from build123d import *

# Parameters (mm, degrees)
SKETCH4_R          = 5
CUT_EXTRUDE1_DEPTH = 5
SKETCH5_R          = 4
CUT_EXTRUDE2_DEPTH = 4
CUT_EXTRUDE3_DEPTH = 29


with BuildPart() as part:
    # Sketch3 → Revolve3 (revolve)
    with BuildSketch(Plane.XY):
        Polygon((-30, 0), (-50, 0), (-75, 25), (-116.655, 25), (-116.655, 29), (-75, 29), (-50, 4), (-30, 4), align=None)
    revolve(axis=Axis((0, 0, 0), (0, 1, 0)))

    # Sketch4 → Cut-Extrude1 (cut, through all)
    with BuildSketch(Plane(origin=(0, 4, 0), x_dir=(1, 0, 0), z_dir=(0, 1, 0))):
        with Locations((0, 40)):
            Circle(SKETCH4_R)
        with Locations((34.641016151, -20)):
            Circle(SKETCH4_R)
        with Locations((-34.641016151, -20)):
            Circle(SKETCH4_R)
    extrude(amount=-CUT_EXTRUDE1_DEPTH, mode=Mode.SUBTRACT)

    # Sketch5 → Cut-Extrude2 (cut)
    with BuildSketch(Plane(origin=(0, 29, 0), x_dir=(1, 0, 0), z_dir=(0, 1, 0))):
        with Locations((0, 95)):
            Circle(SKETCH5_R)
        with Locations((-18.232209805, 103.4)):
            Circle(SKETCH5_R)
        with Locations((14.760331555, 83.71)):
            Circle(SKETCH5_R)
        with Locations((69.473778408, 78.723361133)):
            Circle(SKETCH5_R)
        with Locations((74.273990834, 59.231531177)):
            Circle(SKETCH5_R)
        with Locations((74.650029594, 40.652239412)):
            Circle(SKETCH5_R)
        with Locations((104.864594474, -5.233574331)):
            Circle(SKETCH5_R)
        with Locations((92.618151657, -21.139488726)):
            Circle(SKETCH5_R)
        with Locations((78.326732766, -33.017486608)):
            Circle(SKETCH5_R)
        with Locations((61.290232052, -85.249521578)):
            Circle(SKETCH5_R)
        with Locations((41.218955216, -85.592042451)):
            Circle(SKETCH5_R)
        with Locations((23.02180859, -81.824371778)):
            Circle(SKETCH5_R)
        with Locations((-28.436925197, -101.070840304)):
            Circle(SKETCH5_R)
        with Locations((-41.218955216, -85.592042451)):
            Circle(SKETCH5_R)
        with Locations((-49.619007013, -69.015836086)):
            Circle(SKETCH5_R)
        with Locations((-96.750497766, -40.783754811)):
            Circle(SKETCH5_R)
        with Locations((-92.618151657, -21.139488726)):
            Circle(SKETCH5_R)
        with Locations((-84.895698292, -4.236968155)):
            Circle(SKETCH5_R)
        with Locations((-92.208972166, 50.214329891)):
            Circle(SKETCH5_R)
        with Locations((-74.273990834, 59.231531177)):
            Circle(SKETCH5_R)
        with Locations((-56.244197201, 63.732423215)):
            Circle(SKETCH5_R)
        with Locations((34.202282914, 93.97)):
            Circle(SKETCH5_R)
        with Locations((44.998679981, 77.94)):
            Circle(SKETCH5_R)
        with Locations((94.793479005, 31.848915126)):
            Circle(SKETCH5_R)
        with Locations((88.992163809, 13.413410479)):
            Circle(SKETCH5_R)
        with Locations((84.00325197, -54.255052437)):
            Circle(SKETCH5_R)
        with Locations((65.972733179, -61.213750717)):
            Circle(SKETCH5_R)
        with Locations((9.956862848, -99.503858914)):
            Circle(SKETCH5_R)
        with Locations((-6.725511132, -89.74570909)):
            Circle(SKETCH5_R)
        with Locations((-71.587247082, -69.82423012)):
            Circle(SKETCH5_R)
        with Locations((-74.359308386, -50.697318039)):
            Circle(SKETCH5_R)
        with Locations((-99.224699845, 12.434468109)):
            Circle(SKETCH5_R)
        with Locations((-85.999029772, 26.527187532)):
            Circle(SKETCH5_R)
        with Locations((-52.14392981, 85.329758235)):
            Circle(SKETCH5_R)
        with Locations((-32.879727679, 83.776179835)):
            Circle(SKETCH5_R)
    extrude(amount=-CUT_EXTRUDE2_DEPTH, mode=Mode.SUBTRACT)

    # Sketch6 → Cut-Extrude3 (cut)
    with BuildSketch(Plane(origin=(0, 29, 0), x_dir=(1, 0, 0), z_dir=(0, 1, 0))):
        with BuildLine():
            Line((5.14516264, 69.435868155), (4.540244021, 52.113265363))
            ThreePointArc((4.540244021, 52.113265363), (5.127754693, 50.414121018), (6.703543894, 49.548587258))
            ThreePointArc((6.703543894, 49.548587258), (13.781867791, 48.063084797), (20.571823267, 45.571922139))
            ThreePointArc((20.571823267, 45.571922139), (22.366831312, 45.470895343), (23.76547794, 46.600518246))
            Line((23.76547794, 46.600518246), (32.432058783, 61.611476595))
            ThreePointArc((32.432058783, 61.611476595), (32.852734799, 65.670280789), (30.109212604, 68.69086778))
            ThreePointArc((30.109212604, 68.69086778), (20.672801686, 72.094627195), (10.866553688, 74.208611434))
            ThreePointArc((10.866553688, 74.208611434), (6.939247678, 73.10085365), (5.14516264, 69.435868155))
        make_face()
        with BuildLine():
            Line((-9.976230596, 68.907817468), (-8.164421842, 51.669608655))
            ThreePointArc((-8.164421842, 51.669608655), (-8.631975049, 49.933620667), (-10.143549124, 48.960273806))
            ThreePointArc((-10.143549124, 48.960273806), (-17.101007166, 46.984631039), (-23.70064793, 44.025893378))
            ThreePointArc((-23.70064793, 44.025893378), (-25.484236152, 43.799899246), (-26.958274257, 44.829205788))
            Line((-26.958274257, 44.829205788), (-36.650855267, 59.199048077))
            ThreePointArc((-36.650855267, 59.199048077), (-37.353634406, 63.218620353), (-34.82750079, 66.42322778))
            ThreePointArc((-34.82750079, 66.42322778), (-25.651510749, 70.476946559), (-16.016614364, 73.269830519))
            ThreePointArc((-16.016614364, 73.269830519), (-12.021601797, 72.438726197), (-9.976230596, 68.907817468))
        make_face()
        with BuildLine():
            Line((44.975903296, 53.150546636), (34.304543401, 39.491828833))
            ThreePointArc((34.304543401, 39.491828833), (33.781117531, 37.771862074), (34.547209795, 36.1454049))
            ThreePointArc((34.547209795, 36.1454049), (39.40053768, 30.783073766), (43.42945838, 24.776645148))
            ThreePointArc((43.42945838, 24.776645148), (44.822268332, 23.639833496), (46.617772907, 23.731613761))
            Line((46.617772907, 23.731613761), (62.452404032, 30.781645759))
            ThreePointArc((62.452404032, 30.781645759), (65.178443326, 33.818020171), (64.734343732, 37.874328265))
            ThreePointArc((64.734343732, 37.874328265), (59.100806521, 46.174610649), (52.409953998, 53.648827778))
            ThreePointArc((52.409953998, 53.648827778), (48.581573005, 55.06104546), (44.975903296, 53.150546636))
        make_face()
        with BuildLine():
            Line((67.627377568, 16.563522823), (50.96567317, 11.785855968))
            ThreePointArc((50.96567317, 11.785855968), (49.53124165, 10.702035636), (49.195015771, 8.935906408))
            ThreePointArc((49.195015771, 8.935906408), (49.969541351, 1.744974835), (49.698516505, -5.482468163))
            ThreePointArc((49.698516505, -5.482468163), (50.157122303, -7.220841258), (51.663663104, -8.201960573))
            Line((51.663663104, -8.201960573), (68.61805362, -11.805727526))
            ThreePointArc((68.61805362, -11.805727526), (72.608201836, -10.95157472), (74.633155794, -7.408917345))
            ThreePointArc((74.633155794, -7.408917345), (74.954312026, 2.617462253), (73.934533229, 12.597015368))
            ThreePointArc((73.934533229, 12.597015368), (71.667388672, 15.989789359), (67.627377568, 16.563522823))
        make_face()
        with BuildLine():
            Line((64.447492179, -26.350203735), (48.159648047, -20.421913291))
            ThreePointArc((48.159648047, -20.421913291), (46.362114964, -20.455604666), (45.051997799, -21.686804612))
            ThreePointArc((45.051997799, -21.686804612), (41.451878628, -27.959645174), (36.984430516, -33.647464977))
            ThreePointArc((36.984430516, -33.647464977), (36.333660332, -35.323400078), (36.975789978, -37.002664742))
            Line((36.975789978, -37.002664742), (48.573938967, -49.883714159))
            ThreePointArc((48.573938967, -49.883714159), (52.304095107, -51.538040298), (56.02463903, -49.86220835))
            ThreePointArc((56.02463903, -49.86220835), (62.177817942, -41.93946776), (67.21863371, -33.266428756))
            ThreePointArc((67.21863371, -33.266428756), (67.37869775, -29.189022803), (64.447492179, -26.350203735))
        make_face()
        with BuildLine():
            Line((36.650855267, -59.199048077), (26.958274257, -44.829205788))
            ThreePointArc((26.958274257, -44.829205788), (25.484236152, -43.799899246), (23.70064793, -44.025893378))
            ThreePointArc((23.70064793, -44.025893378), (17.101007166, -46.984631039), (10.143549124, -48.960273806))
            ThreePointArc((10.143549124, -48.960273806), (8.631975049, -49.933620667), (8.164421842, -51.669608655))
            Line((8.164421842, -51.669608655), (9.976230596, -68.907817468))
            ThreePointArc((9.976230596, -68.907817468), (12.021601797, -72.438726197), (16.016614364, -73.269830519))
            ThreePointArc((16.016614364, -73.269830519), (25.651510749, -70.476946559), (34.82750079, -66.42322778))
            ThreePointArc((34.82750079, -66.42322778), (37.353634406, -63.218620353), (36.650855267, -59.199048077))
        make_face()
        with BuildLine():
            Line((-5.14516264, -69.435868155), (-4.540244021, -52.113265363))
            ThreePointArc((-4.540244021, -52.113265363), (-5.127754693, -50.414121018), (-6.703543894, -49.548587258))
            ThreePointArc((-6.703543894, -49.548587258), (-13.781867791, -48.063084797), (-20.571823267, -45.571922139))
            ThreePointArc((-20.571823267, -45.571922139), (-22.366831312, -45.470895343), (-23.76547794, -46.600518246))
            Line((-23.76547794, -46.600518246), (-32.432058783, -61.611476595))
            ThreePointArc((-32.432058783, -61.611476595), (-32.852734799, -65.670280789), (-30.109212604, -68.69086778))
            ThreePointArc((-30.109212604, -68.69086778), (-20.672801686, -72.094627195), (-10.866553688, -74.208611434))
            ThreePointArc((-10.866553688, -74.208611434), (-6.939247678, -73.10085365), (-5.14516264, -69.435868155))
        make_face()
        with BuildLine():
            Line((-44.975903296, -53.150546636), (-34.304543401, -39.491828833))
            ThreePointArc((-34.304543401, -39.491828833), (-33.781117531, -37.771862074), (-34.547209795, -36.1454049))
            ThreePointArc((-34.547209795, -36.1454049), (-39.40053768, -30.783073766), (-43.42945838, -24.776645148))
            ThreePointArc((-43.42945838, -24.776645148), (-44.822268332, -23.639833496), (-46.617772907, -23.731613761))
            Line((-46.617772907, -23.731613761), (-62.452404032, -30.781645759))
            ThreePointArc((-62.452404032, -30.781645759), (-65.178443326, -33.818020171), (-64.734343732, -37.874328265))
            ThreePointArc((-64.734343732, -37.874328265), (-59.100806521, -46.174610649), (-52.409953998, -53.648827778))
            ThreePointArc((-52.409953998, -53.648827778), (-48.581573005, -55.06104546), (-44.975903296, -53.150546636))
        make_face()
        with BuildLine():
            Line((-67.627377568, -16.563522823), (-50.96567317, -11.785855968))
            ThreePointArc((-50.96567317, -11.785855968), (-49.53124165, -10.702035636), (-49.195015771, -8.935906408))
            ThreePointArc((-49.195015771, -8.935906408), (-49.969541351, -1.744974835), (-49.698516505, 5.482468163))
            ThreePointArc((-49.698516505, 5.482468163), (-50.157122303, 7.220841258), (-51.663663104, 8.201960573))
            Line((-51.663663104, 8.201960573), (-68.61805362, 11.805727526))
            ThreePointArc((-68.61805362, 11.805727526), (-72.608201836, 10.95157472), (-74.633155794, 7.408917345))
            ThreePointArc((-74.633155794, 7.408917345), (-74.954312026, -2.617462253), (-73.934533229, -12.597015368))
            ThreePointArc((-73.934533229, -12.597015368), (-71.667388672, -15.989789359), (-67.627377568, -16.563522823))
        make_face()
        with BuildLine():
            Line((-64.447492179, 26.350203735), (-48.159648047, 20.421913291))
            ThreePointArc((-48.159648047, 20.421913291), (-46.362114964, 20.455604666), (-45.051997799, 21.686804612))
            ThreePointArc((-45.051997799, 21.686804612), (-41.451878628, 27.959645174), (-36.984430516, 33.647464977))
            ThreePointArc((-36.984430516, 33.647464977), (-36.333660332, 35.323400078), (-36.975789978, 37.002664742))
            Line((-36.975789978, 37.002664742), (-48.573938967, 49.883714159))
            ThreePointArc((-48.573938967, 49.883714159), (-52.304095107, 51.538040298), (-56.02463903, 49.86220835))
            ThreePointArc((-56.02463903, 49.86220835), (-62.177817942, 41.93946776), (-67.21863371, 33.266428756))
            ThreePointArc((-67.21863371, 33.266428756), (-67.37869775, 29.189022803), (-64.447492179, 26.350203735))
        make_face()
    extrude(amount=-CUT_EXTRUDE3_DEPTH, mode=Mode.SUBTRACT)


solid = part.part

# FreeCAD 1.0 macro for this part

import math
import FreeCAD as App
import Part
import Sketcher
Q = App.Units.Quantity

doc = App.newDocument("Part")
body = doc.addObject("PartDesign::Body", "Body")

sketch1 = body.newObject("Sketcher::SketchObject", "Sketch")
sketch1.AttachmentSupport = (doc.getObject("XY_Plane"), [""])
sketch1.MapMode = "FlatFace"
sketch1.addGeometry([
    Part.LineSegment(App.Vector(-50, 0, 0), App.Vector(-30, 0, 0)),
    Part.LineSegment(App.Vector(-30, 0, 0), App.Vector(-30, 4, 0)),
    Part.LineSegment(App.Vector(-30, 4, 0), App.Vector(-50, 4, 0)),
    Part.LineSegment(App.Vector(-50, 4, 0), App.Vector(-75, 29, 0)),
    Part.LineSegment(App.Vector(-75, 29, 0), App.Vector(-116.7, 29, 0)),
    Part.LineSegment(App.Vector(-116.7, 29, 0), App.Vector(-116.7, 25, 0)),
    Part.LineSegment(App.Vector(-116.7, 25, 0), App.Vector(-75, 25, 0)),
    Part.LineSegment(App.Vector(-75, 25, 0), App.Vector(-50, 0, 0)),
], False)
sketch1.addConstraint([
    Sketcher.Constraint("Coincident", 0, 2, 1, 1),
    Sketcher.Constraint("Coincident", 1, 2, 2, 1),
    Sketcher.Constraint("Coincident", 2, 2, 3, 1),
    Sketcher.Constraint("Coincident", 3, 2, 4, 1),
    Sketcher.Constraint("Coincident", 4, 2, 5, 1),
    Sketcher.Constraint("Coincident", 5, 2, 6, 1),
    Sketcher.Constraint("Coincident", 6, 2, 7, 1),
    Sketcher.Constraint("Coincident", 7, 2, 0, 1),
    Sketcher.Constraint("Horizontal", 0),
    Sketcher.Constraint("Vertical", 1),
    Sketcher.Constraint("Horizontal", 2),
    Sketcher.Constraint("Horizontal", 4),
    Sketcher.Constraint("Vertical", 5),
    Sketcher.Constraint("Horizontal", 6),
    Sketcher.Constraint("PointOnObject", 0, 2, -1),
    Sketcher.Constraint("Parallel", 3, 7),
    Sketcher.Constraint("Vertical", 3, 2, 6, 2),
    Sketcher.Constraint("Vertical", 2, 2, 7, 2),
    Sketcher.Constraint("DistanceX", 0, 1, 0, 2, 20.0),
    Sketcher.Constraint("DistanceY", 1, 1, 1, 2, 4.0),
    Sketcher.Constraint("Angle", 3, Q("135 deg")),
    Sketcher.Constraint("DistanceX", 0, 2, -1, 1, 30.0),
    Sketcher.Constraint("DistanceX", 3, 2, -1, 1, 75.0),
    Sketcher.Constraint("DistanceX", 4, 2, 4, 1, 41.655),
])
revolution = body.newObject("PartDesign::Revolution", "Revolution")
revolution.Profile = sketch1
revolution.ReferenceAxis = (sketch1, ["V_Axis"])
revolution.Angle = 360

sketch2 = body.newObject("Sketcher::SketchObject", "Sketch001")
sketch2.AttachmentSupport = (doc.getObject("XZ_Plane"), [""])
sketch2.MapMode = "FlatFace"
sketch2.AttachmentOffset = App.Placement(App.Vector(0, 0, -4), App.Rotation())
sketch2.addGeometry([
    Part.Circle(App.Vector(0, -40, 0), App.Vector(0, 0, 1), 5),
    Part.Circle(App.Vector(35, 20, 0), App.Vector(0, 0, 1), 5),
    Part.Circle(App.Vector(-35, 20, 0), App.Vector(0, 0, 1), 5),
], False)
sketch2.addConstraint([
    Sketcher.Constraint("Equal", 0, 1),
    Sketcher.Constraint("Equal", 1, 2),
    Sketcher.Constraint("Symmetric", 1, 3, 2, 3, -2),
    Sketcher.Constraint("PointOnObject", 0, 3, -2),
    Sketcher.Constraint("Diameter", 0, 10.0),
    Sketcher.Constraint("DistanceY", 0, 3, -1, 1, 40.0),
    Sketcher.Constraint("DistanceY", -1, 1, 1, 3, 20.0),
    Sketcher.Constraint("DistanceX", -1, 1, 1, 3, 34.641016),
])
pocket1 = body.newObject("PartDesign::Pocket", "Pocket")
pocket1.Profile = sketch2
pocket1.Type = "ThroughAll"
pocket1.Reversed = True

sketch3 = body.newObject("Sketcher::SketchObject", "Sketch002")
sketch3.AttachmentSupport = (doc.getObject("XZ_Plane"), [""])
sketch3.MapMode = "FlatFace"
sketch3.AttachmentOffset = App.Placement(App.Vector(0, 0, -29), App.Rotation())
sketch3.addGeometry([
    Part.Circle(App.Vector(0, -95, 0), App.Vector(0, 0, 1), 4),
    Part.Circle(App.Vector(-18.2, -103.4, 0), App.Vector(0, 0, 1), 4),
    Part.Circle(App.Vector(14.8, -83.7, 0), App.Vector(0, 0, 1), 4),
    Part.Circle(App.Vector(69.5, -78.7, 0), App.Vector(0, 0, 1), 4),
    Part.Circle(App.Vector(74.3, -59.2, 0), App.Vector(0, 0, 1), 4),
    Part.Circle(App.Vector(74.7, -40.7, 0), App.Vector(0, 0, 1), 4),
    Part.Circle(App.Vector(104.9, 5.2, 0), App.Vector(0, 0, 1), 4),
    Part.Circle(App.Vector(92.6, 21.1, 0), App.Vector(0, 0, 1), 4),
    Part.Circle(App.Vector(78.3, 33, 0), App.Vector(0, 0, 1), 4),
    Part.Circle(App.Vector(61.3, 85.2, 0), App.Vector(0, 0, 1), 4),
    Part.Circle(App.Vector(41.2, 85.6, 0), App.Vector(0, 0, 1), 4),
    Part.Circle(App.Vector(23, 81.8, 0), App.Vector(0, 0, 1), 4),
    Part.Circle(App.Vector(-28.4, 101.1, 0), App.Vector(0, 0, 1), 4),
    Part.Circle(App.Vector(-41.2, 85.6, 0), App.Vector(0, 0, 1), 4),
    Part.Circle(App.Vector(-49.6, 69, 0), App.Vector(0, 0, 1), 4),
    Part.Circle(App.Vector(-96.8, 40.8, 0), App.Vector(0, 0, 1), 4),
    Part.Circle(App.Vector(-92.6, 21.1, 0), App.Vector(0, 0, 1), 4),
    Part.Circle(App.Vector(-84.9, 4.2, 0), App.Vector(0, 0, 1), 4),
    Part.Circle(App.Vector(-92.2, -50.2, 0), App.Vector(0, 0, 1), 4),
    Part.Circle(App.Vector(-74.3, -59.2, 0), App.Vector(0, 0, 1), 4),
    Part.Circle(App.Vector(-56.2, -63.7, 0), App.Vector(0, 0, 1), 4),
    Part.Circle(App.Vector(34.2, -94, 0), App.Vector(0, 0, 1), 4),
    Part.Circle(App.Vector(45, -77.9, 0), App.Vector(0, 0, 1), 4),
    Part.Circle(App.Vector(94.8, -31.8, 0), App.Vector(0, 0, 1), 4),
    Part.Circle(App.Vector(89, -13.4, 0), App.Vector(0, 0, 1), 4),
    Part.Circle(App.Vector(84, 54.3, 0), App.Vector(0, 0, 1), 4),
    Part.Circle(App.Vector(66, 61.2, 0), App.Vector(0, 0, 1), 4),
    Part.Circle(App.Vector(10, 99.5, 0), App.Vector(0, 0, 1), 4),
    Part.Circle(App.Vector(-6.7, 89.7, 0), App.Vector(0, 0, 1), 4),
    Part.Circle(App.Vector(-71.6, 69.8, 0), App.Vector(0, 0, 1), 4),
    Part.Circle(App.Vector(-74.4, 50.7, 0), App.Vector(0, 0, 1), 4),
    Part.Circle(App.Vector(-99.2, -12.4, 0), App.Vector(0, 0, 1), 4),
    Part.Circle(App.Vector(-86, -26.5, 0), App.Vector(0, 0, 1), 4),
    Part.Circle(App.Vector(-52.1, -85.3, 0), App.Vector(0, 0, 1), 4),
    Part.Circle(App.Vector(-32.9, -83.8, 0), App.Vector(0, 0, 1), 4),
], False)
sketch3.addConstraint([
    Sketcher.Constraint("Equal", 0, 1),
    Sketcher.Constraint("Equal", 1, 2),
    Sketcher.Constraint("Equal", 2, 3),
    Sketcher.Constraint("Equal", 3, 4),
    Sketcher.Constraint("Equal", 4, 5),
    Sketcher.Constraint("Equal", 5, 6),
    Sketcher.Constraint("Equal", 6, 7),
    Sketcher.Constraint("Equal", 7, 8),
    Sketcher.Constraint("Equal", 8, 9),
    Sketcher.Constraint("Equal", 9, 10),
    Sketcher.Constraint("Equal", 10, 11),
    Sketcher.Constraint("Equal", 11, 12),
    Sketcher.Constraint("Equal", 12, 13),
    Sketcher.Constraint("Equal", 13, 14),
    Sketcher.Constraint("Equal", 14, 15),
    Sketcher.Constraint("Equal", 15, 16),
    Sketcher.Constraint("Equal", 16, 17),
    Sketcher.Constraint("Equal", 17, 18),
    Sketcher.Constraint("Equal", 18, 19),
    Sketcher.Constraint("Equal", 19, 20),
    Sketcher.Constraint("Equal", 20, 21),
    Sketcher.Constraint("Equal", 21, 22),
    Sketcher.Constraint("Equal", 22, 23),
    Sketcher.Constraint("Equal", 23, 24),
    Sketcher.Constraint("Equal", 24, 25),
    Sketcher.Constraint("Equal", 25, 26),
    Sketcher.Constraint("Equal", 26, 27),
    Sketcher.Constraint("Equal", 27, 28),
    Sketcher.Constraint("Equal", 28, 29),
    Sketcher.Constraint("Equal", 29, 30),
    Sketcher.Constraint("Equal", 30, 31),
    Sketcher.Constraint("Equal", 31, 32),
    Sketcher.Constraint("Equal", 32, 33),
    Sketcher.Constraint("Equal", 33, 34),
    Sketcher.Constraint("Symmetric", 10, 3, 13, 3, -2),
    Sketcher.Constraint("Symmetric", 7, 3, 16, 3, -2),
    Sketcher.Constraint("Symmetric", 4, 3, 19, 3, -2),
    Sketcher.Constraint("PointOnObject", 0, 3, -2),
    Sketcher.Constraint("Diameter", 0, 8.0),
    Sketcher.Constraint("DistanceY", 0, 3, -1, 1, 95.0),
    Sketcher.Constraint("DistanceY", 1, 3, -1, 1, 103.4),
    Sketcher.Constraint("DistanceY", 2, 3, -1, 1, 83.71),
    Sketcher.Constraint("DistanceY", 21, 3, -1, 1, 93.97),
    Sketcher.Constraint("DistanceY", 22, 3, -1, 1, 77.94),
    Sketcher.Constraint("DistanceX", 26, 3, 8, 3, 12.354),
    Sketcher.Constraint("DistanceX", 31, 3, 17, 3, 14.329002),
    Sketcher.Constraint("DistanceX", 17, 3, -1, 1, 84.895698),
    Sketcher.Constraint("DistanceX", 1, 3, 4, 3, 92.506201),
    Sketcher.Constraint("DistanceX", 2, 3, 5, 3, 59.889698),
    Sketcher.Constraint("DistanceX", 9, 3, 8, 3, 17.036501),
    Sketcher.Constraint("DistanceX", 15, 3, 17, 3, 11.854799),
    Sketcher.Constraint("DistanceY", 18, 3, 17, 3, 54.451298),
    Sketcher.Constraint("DistanceY", 19, 3, 18, 3, 9.017201),
    Sketcher.Constraint("DistanceX", 17, 3, 20, 3, 28.651501),
    Sketcher.Constraint("DistanceX", 22, 3, 3, 3, 24.475098),
    Sketcher.Constraint("DistanceX", 3, 3, 23, 3, 25.319701),
    Sketcher.Constraint("DistanceY", 24, 3, 7, 3, 34.552899),
    Sketcher.Constraint("DistanceX", 25, 3, 7, 3, 8.6149),
    Sketcher.Constraint("DistanceY", 25, 3, 26, 3, 6.958698),
    Sketcher.Constraint("DistanceX", 30, 3, 14, 3, 24.740301),
    Sketcher.Constraint("DistanceX", 1, 3, -1, 1, 18.23221),
    Sketcher.Constraint("DistanceX", -1, 1, 2, 3, 14.760332),
    Sketcher.Constraint("DistanceX", -1, 1, 3, 3, 69.473778),
    Sketcher.Constraint("DistanceY", 3, 3, -1, 1, 78.723361),
    Sketcher.Constraint("DistanceY", 4, 3, -1, 1, 59.231531),
    Sketcher.Constraint("DistanceY", 5, 3, -1, 1, 40.652239),
    Sketcher.Constraint("DistanceX", -1, 1, 7, 3, 92.618152),
    Sketcher.Constraint("DistanceY", -1, 1, 7, 3, 21.139489),
    Sketcher.Constraint("DistanceY", -1, 1, 9, 3, 85.249522),
    Sketcher.Constraint("DistanceX", -1, 1, 11, 3, 23.021809),
    Sketcher.Constraint("DistanceY", -1, 1, 11, 3, 81.824372),
    Sketcher.Constraint("DistanceY", -1, 1, 12, 3, 101.07084),
    Sketcher.Constraint("DistanceY", -1, 1, 26, 3, 61.213751),
    Sketcher.Constraint("DistanceY", -1, 1, 27, 3, 99.503859),
    Sketcher.Constraint("DistanceX", 28, 3, -1, 1, 6.725511),
    Sketcher.Constraint("DistanceY", -1, 1, 28, 3, 89.745709),
    Sketcher.Constraint("DistanceY", -1, 1, 29, 3, 69.82423),
    Sketcher.Constraint("DistanceX", 30, 3, -1, 1, 74.359308),
    Sketcher.Constraint("DistanceY", -1, 1, 30, 3, 50.697318),
    Sketcher.Constraint("DistanceY", 31, 3, -1, 1, 12.434468),
    Sketcher.Constraint("DistanceX", 32, 3, -1, 1, 85.99903),
    Sketcher.Constraint("DistanceX", 33, 3, -1, 1, 52.14393),
    Sketcher.Constraint("DistanceY", 33, 3, -1, 1, 85.329758),
    Sketcher.Constraint("DistanceY", 34, 3, -1, 1, 83.77618),
    Sketcher.Constraint("DistanceX", 8, 3, 7, 3, 14.291419),
    Sketcher.Constraint("DistanceX", 8, 3, 6, 3, 26.537862),
    Sketcher.Constraint("DistanceY", 9, 3, 10, 3, 0.342521),
    Sketcher.Constraint("DistanceX", 10, 3, 6, 3, 63.645639),
    Sketcher.Constraint("DistanceY", 6, 3, 10, 3, 80.358468),
    Sketcher.Constraint("DistanceX", 12, 3, 10, 3, 69.65588),
    Sketcher.Constraint("DistanceY", 15, 3, 14, 3, 28.232081),
    Sketcher.Constraint("DistanceX", 16, 3, 18, 3, 0.409179),
    Sketcher.Constraint("DistanceY", 20, 3, 17, 3, 67.969391),
    Sketcher.Constraint("DistanceX", 2, 3, 21, 3, 19.441951),
    Sketcher.Constraint("DistanceY", 23, 3, 6, 3, 37.082489),
    Sketcher.Constraint("DistanceX", 24, 3, 6, 3, 15.872431),
    Sketcher.Constraint("DistanceX", 12, 3, 27, 3, 38.393788),
    Sketcher.Constraint("DistanceX", 29, 3, 14, 3, 21.96824),
    Sketcher.Constraint("DistanceY", 30, 3, 14, 3, 18.318518),
    Sketcher.Constraint("DistanceY", 32, 3, 31, 3, 14.092719),
    Sketcher.Constraint("DistanceX", 20, 3, 34, 3, 23.36447),
    Sketcher.Constraint("DistanceY", -1, 1, 8, 3, 33.017487),
])
pocket2 = body.newObject("PartDesign::Pocket", "Pocket001")
pocket2.Profile = sketch3
pocket2.Length = 4
pocket2.Reversed = True

sketch4 = body.newObject("Sketcher::SketchObject", "Sketch003")
sketch4.AttachmentSupport = (doc.getObject("XZ_Plane"), [""])
sketch4.MapMode = "FlatFace"
sketch4.AttachmentOffset = App.Placement(App.Vector(0, 0, -29), App.Rotation())
sketch4.addGeometry([
    Part.LineSegment(App.Vector(5.1, -69.4, 0), App.Vector(4.5, -52.1, 0)),
    Part.ArcOfCircle(Part.Circle(App.Vector(7, -52, 0), App.Vector(0, 0, 1), 2.5), math.radians(98), math.radians(182)),
    Part.ArcOfCircle(Part.Circle(App.Vector(0, 0, 0), App.Vector(0, 0, 1), 50), math.radians(-82.3), math.radians(-65.7)),
    Part.ArcOfCircle(Part.Circle(App.Vector(21.6, -47.9, 0), App.Vector(0, 0, 1), 2.5), math.radians(30), math.radians(114)),
    Part.LineSegment(App.Vector(23.8, -46.6, 0), App.Vector(32.4, -61.6, 0)),
    Part.ArcOfCircle(Part.Circle(App.Vector(28.1, -64.1, 0), App.Vector(0, 0, 1), 5), math.radians(-66), math.radians(30)),
    Part.ArcOfCircle(Part.Circle(App.Vector(0, 0, 0), App.Vector(0, 0, 1), 75), math.radians(-81.67), math.radians(-66.33)),
    Part.ArcOfCircle(Part.Circle(App.Vector(10.1, -69.3, 0), App.Vector(0, 0, 1), 5), math.radians(-178), math.radians(-82)),
    Part.LineSegment(App.Vector(-8.2, -51.7, 0), App.Vector(-10, -68.9, 0)),
    Part.ArcOfCircle(Part.Circle(App.Vector(-14.9, -68.4, 0), App.Vector(0, 0, 1), 5), math.radians(-102), math.radians(-6)),
    Part.ArcOfCircle(Part.Circle(App.Vector(0, 0, 0), App.Vector(0, 0, 1), 75), math.radians(-117.67), math.radians(-102.33)),
    Part.ArcOfCircle(Part.Circle(App.Vector(-32.5, -62, 0), App.Vector(0, 0, 1), 5), math.radians(146), math.radians(242)),
    Part.LineSegment(App.Vector(-36.7, -59.2, 0), App.Vector(-27, -44.8, 0)),
    Part.ArcOfCircle(Part.Circle(App.Vector(-24.9, -46.2, 0), App.Vector(0, 0, 1), 2.5), math.radians(62), math.radians(146)),
    Part.ArcOfCircle(Part.Circle(App.Vector(0, 0, 0), App.Vector(0, 0, 1), 50), math.radians(-118.3), math.radians(-101.7)),
    Part.ArcOfCircle(Part.Circle(App.Vector(-10.7, -51.4, 0), App.Vector(0, 0, 1), 2.5), math.radians(-6), math.radians(78)),
    Part.LineSegment(App.Vector(45, -53.2, 0), App.Vector(34.3, -39.5, 0)),
    Part.ArcOfCircle(Part.Circle(App.Vector(36.3, -38, 0), App.Vector(0, 0, 1), 2.5), math.radians(134), math.radians(218)),
    Part.ArcOfCircle(Part.Circle(App.Vector(0, 0, 0), App.Vector(0, 0, 1), 50), math.radians(-46.3), math.radians(-29.7)),
    Part.ArcOfCircle(Part.Circle(App.Vector(45.6, -26, 0), App.Vector(0, 0, 1), 2.5), math.radians(66), math.radians(150)),
    Part.LineSegment(App.Vector(46.6, -23.7, 0), App.Vector(62.5, -30.8, 0)),
    Part.ArcOfCircle(Part.Circle(App.Vector(60.4, -35.3, 0), App.Vector(0, 0, 1), 5), math.radians(-30), math.radians(66)),
    Part.ArcOfCircle(Part.Circle(App.Vector(0, 0, 0), App.Vector(0, 0, 1), 75), math.radians(-45.67), math.radians(-30.33)),
    Part.ArcOfCircle(Part.Circle(App.Vector(48.9, -50.1, 0), App.Vector(0, 0, 1), 5), math.radians(-142), math.radians(-46)),
    Part.LineSegment(App.Vector(67.6, -16.6, 0), App.Vector(51, -11.8, 0)),
    Part.ArcOfCircle(Part.Circle(App.Vector(51.7, -9.4, 0), App.Vector(0, 0, 1), 2.5), math.radians(170), math.radians(254)),
    Part.ArcOfCircle(Part.Circle(App.Vector(0, 0, 0), App.Vector(0, 0, 1), 50), math.radians(-10.3), math.radians(6.3)),
    Part.ArcOfCircle(Part.Circle(App.Vector(52.2, 5.8, 0), App.Vector(0, 0, 1), 2.5), math.radians(102), math.radians(186)),
    Part.LineSegment(App.Vector(51.7, 8.2, 0), App.Vector(68.6, 11.8, 0)),
    Part.ArcOfCircle(Part.Circle(App.Vector(69.7, 6.9, 0), App.Vector(0, 0, 1), 5), math.radians(6), math.radians(102)),
    Part.ArcOfCircle(Part.Circle(App.Vector(0, 0, 0), App.Vector(0, 0, 1), 75), math.radians(-9.67), math.radians(5.67)),
    Part.ArcOfCircle(Part.Circle(App.Vector(69, -11.8, 0), App.Vector(0, 0, 1), 5), math.radians(-106), math.radians(-10)),
    Part.LineSegment(App.Vector(64.4, 26.4, 0), App.Vector(48.2, 20.4, 0)),
    Part.ArcOfCircle(Part.Circle(App.Vector(47.3, 22.8, 0), App.Vector(0, 0, 1), 2.5), math.radians(-154), math.radians(-70)),
    Part.ArcOfCircle(Part.Circle(App.Vector(0, 0, 0), App.Vector(0, 0, 1), 50), math.radians(25.7), math.radians(42.3)),
    Part.ArcOfCircle(Part.Circle(App.Vector(38.8, 35.3, 0), App.Vector(0, 0, 1), 2.5), math.radians(138), math.radians(222)),
    Part.LineSegment(App.Vector(37, 37, 0), App.Vector(48.6, 49.9, 0)),
    Part.ArcOfCircle(Part.Circle(App.Vector(52.3, 46.5, 0), App.Vector(0, 0, 1), 5), math.radians(42), math.radians(138)),
    Part.ArcOfCircle(Part.Circle(App.Vector(0, 0, 0), App.Vector(0, 0, 1), 75), math.radians(26.33), math.radians(41.67)),
    Part.ArcOfCircle(Part.Circle(App.Vector(62.7, 31, 0), App.Vector(0, 0, 1), 5), math.radians(-70), math.radians(26)),
    Part.LineSegment(App.Vector(36.7, 59.2, 0), App.Vector(27, 44.8, 0)),
    Part.ArcOfCircle(Part.Circle(App.Vector(24.9, 46.2, 0), App.Vector(0, 0, 1), 2.5), math.radians(-118), math.radians(-34)),
    Part.ArcOfCircle(Part.Circle(App.Vector(0, 0, 0), App.Vector(0, 0, 1), 50), math.radians(61.7), math.radians(78.3)),
    Part.ArcOfCircle(Part.Circle(App.Vector(10.7, 51.4, 0), App.Vector(0, 0, 1), 2.5), math.radians(174), math.radians(258)),
    Part.LineSegment(App.Vector(8.2, 51.7, 0), App.Vector(10, 68.9, 0)),
    Part.ArcOfCircle(Part.Circle(App.Vector(14.9, 68.4, 0), App.Vector(0, 0, 1), 5), math.radians(78), math.radians(174)),
    Part.ArcOfCircle(Part.Circle(App.Vector(0, 0, 0), App.Vector(0, 0, 1), 75), math.radians(62.33), math.radians(77.67)),
    Part.ArcOfCircle(Part.Circle(App.Vector(32.5, 62, 0), App.Vector(0, 0, 1), 5), math.radians(-34), math.radians(62)),
    Part.LineSegment(App.Vector(-5.1, 69.4, 0), App.Vector(-4.5, 52.1, 0)),
    Part.ArcOfCircle(Part.Circle(App.Vector(-7, 52, 0), App.Vector(0, 0, 1), 2.5), math.radians(-82), math.radians(2)),
    Part.ArcOfCircle(Part.Circle(App.Vector(0, 0, 0), App.Vector(0, 0, 1), 50), math.radians(97.7), math.radians(114.3)),
    Part.ArcOfCircle(Part.Circle(App.Vector(-21.6, 47.9, 0), App.Vector(0, 0, 1), 2.5), math.radians(-150), math.radians(-66)),
    Part.LineSegment(App.Vector(-23.8, 46.6, 0), App.Vector(-32.4, 61.6, 0)),
    Part.ArcOfCircle(Part.Circle(App.Vector(-28.1, 64.1, 0), App.Vector(0, 0, 1), 5), math.radians(114), math.radians(210)),
    Part.ArcOfCircle(Part.Circle(App.Vector(0, 0, 0), App.Vector(0, 0, 1), 75), math.radians(98.33), math.radians(113.67)),
    Part.ArcOfCircle(Part.Circle(App.Vector(-10.1, 69.3, 0), App.Vector(0, 0, 1), 5), math.radians(2), math.radians(98)),
    Part.LineSegment(App.Vector(-45, 53.2, 0), App.Vector(-34.3, 39.5, 0)),
    Part.ArcOfCircle(Part.Circle(App.Vector(-36.3, 38, 0), App.Vector(0, 0, 1), 2.5), math.radians(-46), math.radians(38)),
    Part.ArcOfCircle(Part.Circle(App.Vector(0, 0, 0), App.Vector(0, 0, 1), 50), math.radians(133.7), math.radians(150.3)),
    Part.ArcOfCircle(Part.Circle(App.Vector(-45.6, 26, 0), App.Vector(0, 0, 1), 2.5), math.radians(-114), math.radians(-30)),
    Part.LineSegment(App.Vector(-46.6, 23.7, 0), App.Vector(-62.5, 30.8, 0)),
    Part.ArcOfCircle(Part.Circle(App.Vector(-60.4, 35.3, 0), App.Vector(0, 0, 1), 5), math.radians(150), math.radians(246)),
    Part.ArcOfCircle(Part.Circle(App.Vector(0, 0, 0), App.Vector(0, 0, 1), 75), math.radians(134.33), math.radians(149.67)),
    Part.ArcOfCircle(Part.Circle(App.Vector(-48.9, 50.1, 0), App.Vector(0, 0, 1), 5), math.radians(38), math.radians(134)),
    Part.LineSegment(App.Vector(-67.6, 16.6, 0), App.Vector(-51, 11.8, 0)),
    Part.ArcOfCircle(Part.Circle(App.Vector(-51.7, 9.4, 0), App.Vector(0, 0, 1), 2.5), math.radians(-10), math.radians(74)),
    Part.ArcOfCircle(Part.Circle(App.Vector(0, 0, 0), App.Vector(0, 0, 1), 50), math.radians(169.7), math.radians(186.3)),
    Part.ArcOfCircle(Part.Circle(App.Vector(-52.2, -5.8, 0), App.Vector(0, 0, 1), 2.5), math.radians(-78), math.radians(6)),
    Part.LineSegment(App.Vector(-51.7, -8.2, 0), App.Vector(-68.6, -11.8, 0)),
    Part.ArcOfCircle(Part.Circle(App.Vector(-69.7, -6.9, 0), App.Vector(0, 0, 1), 5), math.radians(-174), math.radians(-78)),
    Part.ArcOfCircle(Part.Circle(App.Vector(0, 0, 0), App.Vector(0, 0, 1), 75), math.radians(170.33), math.radians(185.67)),
    Part.ArcOfCircle(Part.Circle(App.Vector(-69, 11.8, 0), App.Vector(0, 0, 1), 5), math.radians(74), math.radians(170)),
    Part.LineSegment(App.Vector(-64.4, -26.4, 0), App.Vector(-48.2, -20.4, 0)),
    Part.ArcOfCircle(Part.Circle(App.Vector(-47.3, -22.8, 0), App.Vector(0, 0, 1), 2.5), math.radians(26), math.radians(110)),
    Part.ArcOfCircle(Part.Circle(App.Vector(0, 0, 0), App.Vector(0, 0, 1), 50), math.radians(-154.3), math.radians(-137.7)),
    Part.ArcOfCircle(Part.Circle(App.Vector(-38.8, -35.3, 0), App.Vector(0, 0, 1), 2.5), math.radians(-42), math.radians(42)),
    Part.LineSegment(App.Vector(-37, -37, 0), App.Vector(-48.6, -49.9, 0)),
    Part.ArcOfCircle(Part.Circle(App.Vector(-52.3, -46.5, 0), App.Vector(0, 0, 1), 5), math.radians(-138), math.radians(-42)),
    Part.ArcOfCircle(Part.Circle(App.Vector(0, 0, 0), App.Vector(0, 0, 1), 75), math.radians(-153.67), math.radians(-138.33)),
    Part.ArcOfCircle(Part.Circle(App.Vector(-62.7, -31, 0), App.Vector(0, 0, 1), 5), math.radians(110), math.radians(206)),
], False)
sketch4.addConstraint([
    Sketcher.Constraint("Tangent", 0, 2, 1, 2),
    Sketcher.Constraint("Tangent", 1, 1, 2, 1),
    Sketcher.Constraint("Tangent", 2, 2, 3, 2),
    Sketcher.Constraint("Tangent", 3, 1, 4, 1),
    Sketcher.Constraint("Tangent", 4, 2, 5, 2),
    Sketcher.Constraint("Tangent", 5, 1, 6, 2),
    Sketcher.Constraint("Tangent", 6, 1, 7, 2),
    Sketcher.Constraint("Tangent", 7, 1, 0, 1),
    Sketcher.Constraint("Tangent", 8, 2, 9, 2),
    Sketcher.Constraint("Tangent", 9, 1, 10, 2),
    Sketcher.Constraint("Tangent", 10, 1, 11, 2),
    Sketcher.Constraint("Tangent", 11, 1, 12, 1),
    Sketcher.Constraint("Tangent", 12, 2, 13, 2),
    Sketcher.Constraint("Tangent", 13, 1, 14, 1),
    Sketcher.Constraint("Tangent", 14, 2, 15, 2),
    Sketcher.Constraint("Tangent", 15, 1, 8, 1),
    Sketcher.Constraint("Tangent", 16, 2, 17, 2),
    Sketcher.Constraint("Tangent", 17, 1, 18, 1),
    Sketcher.Constraint("Tangent", 18, 2, 19, 2),
    Sketcher.Constraint("Tangent", 19, 1, 20, 1),
    Sketcher.Constraint("Tangent", 20, 2, 21, 2),
    Sketcher.Constraint("Tangent", 21, 1, 22, 2),
    Sketcher.Constraint("Tangent", 22, 1, 23, 2),
    Sketcher.Constraint("Tangent", 23, 1, 16, 1),
    Sketcher.Constraint("Tangent", 24, 2, 25, 2),
    Sketcher.Constraint("Tangent", 25, 1, 26, 1),
    Sketcher.Constraint("Tangent", 26, 2, 27, 2),
    Sketcher.Constraint("Tangent", 27, 1, 28, 1),
    Sketcher.Constraint("Tangent", 28, 2, 29, 2),
    Sketcher.Constraint("Tangent", 29, 1, 30, 2),
    Sketcher.Constraint("Tangent", 30, 1, 31, 2),
    Sketcher.Constraint("Tangent", 31, 1, 24, 1),
    Sketcher.Constraint("Tangent", 32, 2, 33, 2),
    Sketcher.Constraint("Tangent", 33, 1, 34, 1),
    Sketcher.Constraint("Tangent", 34, 2, 35, 2),
    Sketcher.Constraint("Tangent", 35, 1, 36, 1),
    Sketcher.Constraint("Tangent", 36, 2, 37, 2),
    Sketcher.Constraint("Tangent", 37, 1, 38, 2),
    Sketcher.Constraint("Tangent", 38, 1, 39, 2),
    Sketcher.Constraint("Tangent", 39, 1, 32, 1),
    Sketcher.Constraint("Tangent", 40, 2, 41, 2),
    Sketcher.Constraint("Tangent", 41, 1, 42, 1),
    Sketcher.Constraint("Tangent", 42, 2, 43, 2),
    Sketcher.Constraint("Tangent", 43, 1, 44, 1),
    Sketcher.Constraint("Tangent", 44, 2, 45, 2),
    Sketcher.Constraint("Tangent", 45, 1, 46, 2),
    Sketcher.Constraint("Tangent", 46, 1, 47, 2),
    Sketcher.Constraint("Tangent", 47, 1, 40, 1),
    Sketcher.Constraint("Tangent", 48, 2, 49, 2),
    Sketcher.Constraint("Tangent", 49, 1, 50, 1),
    Sketcher.Constraint("Tangent", 50, 2, 51, 2),
    Sketcher.Constraint("Tangent", 51, 1, 52, 1),
    Sketcher.Constraint("Tangent", 52, 2, 53, 2),
    Sketcher.Constraint("Tangent", 53, 1, 54, 2),
    Sketcher.Constraint("Tangent", 54, 1, 55, 2),
    Sketcher.Constraint("Tangent", 55, 1, 48, 1),
    Sketcher.Constraint("Tangent", 56, 2, 57, 2),
    Sketcher.Constraint("Tangent", 57, 1, 58, 1),
    Sketcher.Constraint("Tangent", 58, 2, 59, 2),
    Sketcher.Constraint("Tangent", 59, 1, 60, 1),
    Sketcher.Constraint("Tangent", 60, 2, 61, 2),
    Sketcher.Constraint("Tangent", 61, 1, 62, 2),
    Sketcher.Constraint("Tangent", 62, 1, 63, 2),
    Sketcher.Constraint("Tangent", 63, 1, 56, 1),
    Sketcher.Constraint("Tangent", 64, 2, 65, 2),
    Sketcher.Constraint("Tangent", 65, 1, 66, 1),
    Sketcher.Constraint("Tangent", 66, 2, 67, 2),
    Sketcher.Constraint("Tangent", 67, 1, 68, 1),
    Sketcher.Constraint("Tangent", 68, 2, 69, 2),
    Sketcher.Constraint("Tangent", 69, 1, 70, 2),
    Sketcher.Constraint("Tangent", 70, 1, 71, 2),
    Sketcher.Constraint("Tangent", 71, 1, 64, 1),
    Sketcher.Constraint("Tangent", 72, 2, 73, 2),
    Sketcher.Constraint("Tangent", 73, 1, 74, 1),
    Sketcher.Constraint("Tangent", 74, 2, 75, 2),
    Sketcher.Constraint("Tangent", 75, 1, 76, 1),
    Sketcher.Constraint("Tangent", 76, 2, 77, 2),
    Sketcher.Constraint("Tangent", 77, 1, 78, 2),
    Sketcher.Constraint("Tangent", 78, 1, 79, 2),
    Sketcher.Constraint("Tangent", 79, 1, 72, 1),
    Sketcher.Constraint("Coincident", 2, 3, -1, 1),
    Sketcher.Constraint("Coincident", 6, 3, -1, 1),
    Sketcher.Constraint("Coincident", 10, 3, -1, 1),
    Sketcher.Constraint("Coincident", 14, 3, -1, 1),
    Sketcher.Constraint("Coincident", 18, 3, -1, 1),
    Sketcher.Constraint("Coincident", 22, 3, -1, 1),
    Sketcher.Constraint("Coincident", 26, 3, -1, 1),
    Sketcher.Constraint("Coincident", 30, 3, -1, 1),
    Sketcher.Constraint("Coincident", 34, 3, -1, 1),
    Sketcher.Constraint("Coincident", 38, 3, -1, 1),
    Sketcher.Constraint("Coincident", 42, 3, -1, 1),
    Sketcher.Constraint("Coincident", 46, 3, -1, 1),
    Sketcher.Constraint("Coincident", 50, 3, -1, 1),
    Sketcher.Constraint("Coincident", 54, 3, -1, 1),
    Sketcher.Constraint("Coincident", 58, 3, -1, 1),
    Sketcher.Constraint("Coincident", 62, 3, -1, 1),
    Sketcher.Constraint("Coincident", 66, 3, -1, 1),
    Sketcher.Constraint("Coincident", 70, 3, -1, 1),
    Sketcher.Constraint("Coincident", 74, 3, -1, 1),
    Sketcher.Constraint("Coincident", 78, 3, -1, 1),
    Sketcher.Constraint("Equal", 1, 3),
    Sketcher.Constraint("Equal", 5, 7),
    Sketcher.Constraint("Equal", 7, 9),
    Sketcher.Constraint("Equal", 6, 10),
    Sketcher.Constraint("Equal", 9, 11),
    Sketcher.Constraint("Equal", 3, 13),
    Sketcher.Constraint("Equal", 2, 14),
    Sketcher.Constraint("Equal", 13, 15),
    Sketcher.Constraint("Equal", 15, 17),
    Sketcher.Constraint("Equal", 14, 18),
    Sketcher.Constraint("Equal", 17, 19),
    Sketcher.Constraint("Equal", 11, 21),
    Sketcher.Constraint("Equal", 10, 22),
    Sketcher.Constraint("Equal", 21, 23),
    Sketcher.Constraint("Equal", 19, 25),
    Sketcher.Constraint("Equal", 18, 26),
    Sketcher.Constraint("Equal", 25, 27),
    Sketcher.Constraint("Equal", 23, 29),
    Sketcher.Constraint("Equal", 22, 30),
    Sketcher.Constraint("Equal", 29, 31),
    Sketcher.Constraint("Equal", 27, 33),
    Sketcher.Constraint("Equal", 26, 34),
    Sketcher.Constraint("Equal", 33, 35),
    Sketcher.Constraint("Equal", 31, 37),
    Sketcher.Constraint("Equal", 30, 38),
    Sketcher.Constraint("Equal", 37, 39),
    Sketcher.Constraint("Equal", 35, 41),
    Sketcher.Constraint("Equal", 34, 42),
    Sketcher.Constraint("Equal", 41, 43),
    Sketcher.Constraint("Equal", 39, 45),
    Sketcher.Constraint("Equal", 38, 46),
    Sketcher.Constraint("Equal", 45, 47),
    Sketcher.Constraint("Equal", 43, 49),
    Sketcher.Constraint("Equal", 42, 50),
    Sketcher.Constraint("Equal", 49, 51),
    Sketcher.Constraint("Equal", 47, 53),
    Sketcher.Constraint("Equal", 46, 54),
    Sketcher.Constraint("Equal", 53, 55),
    Sketcher.Constraint("Equal", 51, 57),
    Sketcher.Constraint("Equal", 50, 58),
    Sketcher.Constraint("Equal", 57, 59),
    Sketcher.Constraint("Equal", 55, 61),
    Sketcher.Constraint("Equal", 54, 62),
    Sketcher.Constraint("Equal", 61, 63),
    Sketcher.Constraint("Equal", 59, 65),
    Sketcher.Constraint("Equal", 58, 66),
    Sketcher.Constraint("Equal", 65, 67),
    Sketcher.Constraint("Equal", 63, 69),
    Sketcher.Constraint("Equal", 62, 70),
    Sketcher.Constraint("Equal", 69, 71),
    Sketcher.Constraint("Equal", 67, 73),
    Sketcher.Constraint("Equal", 66, 74),
    Sketcher.Constraint("Equal", 73, 75),
    Sketcher.Constraint("Equal", 71, 77),
    Sketcher.Constraint("Equal", 70, 78),
    Sketcher.Constraint("Equal", 77, 79),
    Sketcher.Constraint("Symmetric", 12, 2, 40, 2, -1, 1),
    Sketcher.Constraint("Symmetric", 15, 1, 43, 1, -1, 1),
    Sketcher.Constraint("Symmetric", 0, 2, 48, 2, -1, 1),
    Sketcher.Constraint("Symmetric", 3, 1, 51, 1, -1, 1),
    Sketcher.Constraint("Symmetric", 16, 2, 56, 2, -1, 1),
    Sketcher.Constraint("Symmetric", 19, 1, 59, 1, -1, 1),
    Sketcher.Constraint("Symmetric", 24, 2, 64, 2, -1, 1),
    Sketcher.Constraint("Symmetric", 27, 1, 67, 1, -1, 1),
    Sketcher.Constraint("Symmetric", 32, 2, 72, 2, -1, 1),
    Sketcher.Constraint("Symmetric", 35, 1, 75, 1, -1, 1),
    Sketcher.Constraint("Equal", 0, 4),
    Sketcher.Constraint("Equal", 4, 8),
    Sketcher.Constraint("Equal", 8, 12),
    Sketcher.Constraint("Equal", 12, 16),
    Sketcher.Constraint("Equal", 16, 20),
    Sketcher.Constraint("Equal", 20, 24),
    Sketcher.Constraint("Equal", 24, 28),
    Sketcher.Constraint("Equal", 28, 32),
    Sketcher.Constraint("Equal", 32, 36),
    Sketcher.Constraint("Radius", 2, 50.0),
    Sketcher.Constraint("Radius", 5, 5.0),
    Sketcher.Constraint("Radius", 6, 75.0),
    Sketcher.Constraint("Radius", 1, 2.5),
    Sketcher.Constraint("Angle", 0, Q("92 deg")),
    Sketcher.Constraint("Angle", 4, Q("-60 deg")),
    Sketcher.Constraint("Angle", 8, Q("-96 deg")),
    Sketcher.Constraint("Angle", 12, Q("56 deg")),
    Sketcher.Constraint("Angle", 16, Q("128 deg")),
    Sketcher.Constraint("Angle", 20, Q("-24 deg")),
    Sketcher.Constraint("Angle", 24, Q("164 deg")),
    Sketcher.Constraint("Angle", 28, Q("12 deg")),
    Sketcher.Constraint("Angle", 32, Q("-160 deg")),
    Sketcher.Constraint("Angle", 36, Q("48 deg")),
    Sketcher.Constraint("DistanceY", 25, 3, -1, 1, 9.382702),
])
pocket3 = body.newObject("PartDesign::Pocket", "Pocket002")
pocket3.Profile = sketch4
pocket3.Length = 29
pocket3.Reversed = True

doc.recompute()
